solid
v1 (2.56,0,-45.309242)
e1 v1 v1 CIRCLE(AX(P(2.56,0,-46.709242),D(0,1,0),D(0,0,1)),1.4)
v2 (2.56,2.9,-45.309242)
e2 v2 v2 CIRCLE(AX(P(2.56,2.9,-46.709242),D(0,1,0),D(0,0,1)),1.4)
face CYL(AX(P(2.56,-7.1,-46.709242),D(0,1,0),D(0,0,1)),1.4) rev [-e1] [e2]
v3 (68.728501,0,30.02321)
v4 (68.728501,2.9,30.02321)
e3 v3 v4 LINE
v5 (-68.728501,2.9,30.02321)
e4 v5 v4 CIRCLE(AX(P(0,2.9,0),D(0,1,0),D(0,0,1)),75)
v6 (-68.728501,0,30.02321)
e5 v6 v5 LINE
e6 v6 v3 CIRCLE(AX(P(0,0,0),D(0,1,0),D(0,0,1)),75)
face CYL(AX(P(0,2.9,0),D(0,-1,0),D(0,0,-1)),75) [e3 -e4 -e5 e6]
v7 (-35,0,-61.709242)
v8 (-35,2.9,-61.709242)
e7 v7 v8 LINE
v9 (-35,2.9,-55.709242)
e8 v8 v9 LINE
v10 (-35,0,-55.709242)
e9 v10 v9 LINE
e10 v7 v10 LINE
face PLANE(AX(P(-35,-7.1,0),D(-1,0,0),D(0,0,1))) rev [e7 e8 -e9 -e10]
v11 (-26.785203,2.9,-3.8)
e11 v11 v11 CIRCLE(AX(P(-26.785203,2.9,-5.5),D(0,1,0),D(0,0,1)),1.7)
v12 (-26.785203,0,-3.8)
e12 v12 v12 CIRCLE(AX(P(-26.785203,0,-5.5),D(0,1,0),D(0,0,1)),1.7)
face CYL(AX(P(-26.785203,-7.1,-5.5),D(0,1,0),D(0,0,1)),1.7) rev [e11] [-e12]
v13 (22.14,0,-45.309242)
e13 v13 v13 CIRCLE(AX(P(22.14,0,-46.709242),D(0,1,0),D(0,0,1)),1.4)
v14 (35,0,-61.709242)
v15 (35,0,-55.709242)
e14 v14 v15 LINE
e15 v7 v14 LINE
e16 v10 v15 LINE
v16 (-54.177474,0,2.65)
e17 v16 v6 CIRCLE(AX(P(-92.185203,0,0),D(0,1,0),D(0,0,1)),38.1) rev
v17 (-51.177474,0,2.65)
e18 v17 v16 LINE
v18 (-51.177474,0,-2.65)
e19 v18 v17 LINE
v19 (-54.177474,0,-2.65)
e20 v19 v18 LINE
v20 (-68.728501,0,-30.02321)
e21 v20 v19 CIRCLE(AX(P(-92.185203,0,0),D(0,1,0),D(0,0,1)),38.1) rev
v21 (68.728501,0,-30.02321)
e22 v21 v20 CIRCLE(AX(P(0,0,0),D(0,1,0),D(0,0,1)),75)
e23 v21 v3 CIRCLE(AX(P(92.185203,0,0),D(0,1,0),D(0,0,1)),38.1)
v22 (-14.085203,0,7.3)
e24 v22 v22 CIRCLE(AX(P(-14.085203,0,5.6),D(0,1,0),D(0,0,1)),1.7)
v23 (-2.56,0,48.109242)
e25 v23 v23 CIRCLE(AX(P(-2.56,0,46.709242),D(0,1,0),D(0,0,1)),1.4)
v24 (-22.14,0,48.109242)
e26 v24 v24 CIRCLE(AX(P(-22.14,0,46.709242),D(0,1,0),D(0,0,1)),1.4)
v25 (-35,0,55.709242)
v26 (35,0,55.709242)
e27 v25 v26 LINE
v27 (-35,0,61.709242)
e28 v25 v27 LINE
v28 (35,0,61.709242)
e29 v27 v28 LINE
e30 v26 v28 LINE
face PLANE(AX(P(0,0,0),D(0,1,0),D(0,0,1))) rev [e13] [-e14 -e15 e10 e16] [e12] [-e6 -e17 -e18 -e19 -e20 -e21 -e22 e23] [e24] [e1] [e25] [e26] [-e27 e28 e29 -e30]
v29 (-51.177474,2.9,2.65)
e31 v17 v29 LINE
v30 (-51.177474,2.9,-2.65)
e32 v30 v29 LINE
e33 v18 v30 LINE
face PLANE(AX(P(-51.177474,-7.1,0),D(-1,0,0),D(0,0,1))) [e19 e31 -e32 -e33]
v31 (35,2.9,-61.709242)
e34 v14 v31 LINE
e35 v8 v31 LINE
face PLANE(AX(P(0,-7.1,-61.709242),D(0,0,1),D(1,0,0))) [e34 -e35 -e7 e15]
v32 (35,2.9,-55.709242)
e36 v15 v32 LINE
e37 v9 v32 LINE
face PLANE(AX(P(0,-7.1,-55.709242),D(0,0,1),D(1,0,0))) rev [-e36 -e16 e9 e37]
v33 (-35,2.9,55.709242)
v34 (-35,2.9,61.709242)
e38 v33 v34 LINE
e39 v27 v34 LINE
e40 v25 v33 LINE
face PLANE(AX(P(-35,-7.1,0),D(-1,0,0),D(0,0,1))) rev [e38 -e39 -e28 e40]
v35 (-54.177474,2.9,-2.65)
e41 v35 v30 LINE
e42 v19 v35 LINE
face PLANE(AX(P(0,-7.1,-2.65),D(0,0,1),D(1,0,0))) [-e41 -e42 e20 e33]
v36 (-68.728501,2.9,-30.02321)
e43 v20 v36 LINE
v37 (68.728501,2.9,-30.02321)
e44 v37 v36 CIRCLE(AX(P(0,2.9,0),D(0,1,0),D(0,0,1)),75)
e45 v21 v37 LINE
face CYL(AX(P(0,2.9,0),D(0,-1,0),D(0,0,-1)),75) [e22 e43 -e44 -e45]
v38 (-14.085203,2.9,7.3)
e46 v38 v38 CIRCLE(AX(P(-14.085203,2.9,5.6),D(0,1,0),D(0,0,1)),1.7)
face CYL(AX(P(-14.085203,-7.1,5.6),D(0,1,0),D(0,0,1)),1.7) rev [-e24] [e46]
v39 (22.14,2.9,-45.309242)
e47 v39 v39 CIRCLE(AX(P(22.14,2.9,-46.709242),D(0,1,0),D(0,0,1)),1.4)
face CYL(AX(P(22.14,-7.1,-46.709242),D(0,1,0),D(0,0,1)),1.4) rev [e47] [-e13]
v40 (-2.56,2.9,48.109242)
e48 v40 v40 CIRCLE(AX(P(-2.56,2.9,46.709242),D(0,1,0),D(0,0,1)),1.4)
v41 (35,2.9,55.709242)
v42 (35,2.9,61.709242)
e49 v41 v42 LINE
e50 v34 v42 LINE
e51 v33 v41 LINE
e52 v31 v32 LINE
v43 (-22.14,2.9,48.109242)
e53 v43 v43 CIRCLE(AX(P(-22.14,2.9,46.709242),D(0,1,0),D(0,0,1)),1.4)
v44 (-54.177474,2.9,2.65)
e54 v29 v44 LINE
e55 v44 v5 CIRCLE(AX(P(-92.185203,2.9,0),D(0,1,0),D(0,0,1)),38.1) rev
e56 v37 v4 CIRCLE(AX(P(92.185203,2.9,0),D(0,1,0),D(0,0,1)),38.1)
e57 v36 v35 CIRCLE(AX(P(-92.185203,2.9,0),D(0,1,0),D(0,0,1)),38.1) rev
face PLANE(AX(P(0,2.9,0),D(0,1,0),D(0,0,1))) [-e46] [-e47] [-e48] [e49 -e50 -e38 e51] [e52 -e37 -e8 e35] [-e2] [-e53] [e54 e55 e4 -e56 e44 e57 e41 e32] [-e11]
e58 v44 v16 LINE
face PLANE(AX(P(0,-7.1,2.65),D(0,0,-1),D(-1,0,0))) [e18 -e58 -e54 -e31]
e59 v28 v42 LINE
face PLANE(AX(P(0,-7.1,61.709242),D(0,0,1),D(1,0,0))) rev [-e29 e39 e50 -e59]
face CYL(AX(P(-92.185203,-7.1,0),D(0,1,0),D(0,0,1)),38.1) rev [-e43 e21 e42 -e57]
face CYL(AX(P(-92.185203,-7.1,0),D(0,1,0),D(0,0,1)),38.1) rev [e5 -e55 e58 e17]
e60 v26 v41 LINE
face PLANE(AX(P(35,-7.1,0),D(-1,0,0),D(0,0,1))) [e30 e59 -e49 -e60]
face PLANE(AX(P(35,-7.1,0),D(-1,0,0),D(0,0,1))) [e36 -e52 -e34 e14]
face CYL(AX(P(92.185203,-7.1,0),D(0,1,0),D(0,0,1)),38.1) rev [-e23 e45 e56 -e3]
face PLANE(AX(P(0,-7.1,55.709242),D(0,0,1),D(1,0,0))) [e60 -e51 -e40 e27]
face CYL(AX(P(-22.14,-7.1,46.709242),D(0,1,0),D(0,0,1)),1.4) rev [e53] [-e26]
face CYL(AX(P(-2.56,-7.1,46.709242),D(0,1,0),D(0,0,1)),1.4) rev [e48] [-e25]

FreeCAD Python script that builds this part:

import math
import FreeCAD as App
import Part
import Sketcher

doc = App.newDocument("Part")
params = doc.addObject("Spreadsheet::Sheet", "Params")
for row, (alias, value) in enumerate([
    ("sketch1_diameter", "150 mm"),
    ("pad1_length", "2.9 mm"),
    ("sketch2_radius", "75 mm"),
    ("sketch2_diameter", "2.8 mm"),
    ("sketch2_radius2", "38.1 mm"),
    ("sketch2_width", "70 mm"),
    ("sketch2_height", "6 mm"),
    ("pocket1_length", "10 mm"),
    ("sketch3_diameter", "3.4 mm"),
    ("sketch3_radius", "38.1 mm"),
    ("sketch3_width", "3 mm"),
    ("sketch3_height", "5.3 mm"),
    ("pocket2_length", "10 mm"),
], start=1):
    params.set(f"A{row}", alias)
    params.set(f"B{row}", "=" + value)
    params.setAlias(f"B{row}", alias)

body = doc.addObject("PartDesign::Body", "Body")

# Sketch on XZ plane
sketch1 = body.newObject("Sketcher::SketchObject", "Sketch")
sketch1.AttachmentSupport = (doc.getObject("XZ_Plane"), [""])
sketch1.MapMode = "FlatFace"
sketch1.addGeometry(Part.Circle(App.Vector(0, 0, 0), App.Vector(0, 0, 1), 75), False)
sketch1.addConstraint([
    Sketcher.Constraint("Coincident", 0, 3, -1, 1),
    Sketcher.Constraint("Diameter", 0, 150.0),
])
sketch1.setExpression("Constraints[1]", "Params.sketch1_diameter")
pad1 = body.newObject("PartDesign::Pad", "Pad")
pad1.Profile = sketch1
pad1.setExpression("Length", "Params.pad1_length")
pad1.Reversed = True

# Sketch on XZ plane
sketch2 = body.newObject("Sketcher::SketchObject", "Sketch001")
sketch2.AttachmentSupport = (doc.getObject("XZ_Plane"), [""])
sketch2.MapMode = "FlatFace"
sketch2.AttachmentOffset = App.Placement(App.Vector(0, 0, -2.9), App.Rotation())
sketch2.addGeometry([
    Part.LineSegment(App.Vector(-35, 55.7, 0), App.Vector(-35, 61.7, 0)),  # 0
    Part.LineSegment(App.Vector(-35, 61.7, 0), App.Vector(35, 61.7, 0)),  # 1
    Part.LineSegment(App.Vector(35, 61.7, 0), App.Vector(35, 55.7, 0)),  # 2
    Part.LineSegment(App.Vector(35, 55.7, 0), App.Vector(-35, 55.7, 0)),  # 3
    Part.LineSegment(App.Vector(-35, -61.7, 0), App.Vector(-35, -55.7, 0)),  # 4
    Part.LineSegment(App.Vector(-35, -55.7, 0), App.Vector(35, -55.7, 0)),  # 5
    Part.LineSegment(App.Vector(35, -55.7, 0), App.Vector(35, -61.7, 0)),  # 6
    Part.LineSegment(App.Vector(35, -61.7, 0), App.Vector(-35, -61.7, 0)),  # 7
    Part.ArcOfCircle(Part.Circle(App.Vector(-92.2, 0, 0), App.Vector(0, 0, 1), 38.1), math.radians(-52), math.radians(52)),  # 8
    Part.ArcOfCircle(Part.Circle(App.Vector(0, 0, 0), App.Vector(0, 0, 1), 75), math.radians(156), math.radians(204)),  # 9
    Part.ArcOfCircle(Part.Circle(App.Vector(0, 0, 0), App.Vector(0, 0, 1), 75), math.radians(-24), math.radians(24)),  # 10
    Part.ArcOfCircle(Part.Circle(App.Vector(92.2, 0, 0), App.Vector(0, 0, 1), 38.1), math.radians(128), math.radians(232)),  # 11
    Part.Circle(App.Vector(-22.1, 46.7, 0), App.Vector(0, 0, 1), 1.4),  # 12
    Part.Circle(App.Vector(-2.6, 46.7, 0), App.Vector(0, 0, 1), 1.4),  # 13
    Part.Circle(App.Vector(22.1, -46.7, 0), App.Vector(0, 0, 1), 1.4),  # 14
    Part.Circle(App.Vector(2.6, -46.7, 0), App.Vector(0, 0, 1), 1.4),  # 15
], False)
sketch2.addConstraint([
    Sketcher.Constraint("Coincident", 0, 2, 1, 1),
    Sketcher.Constraint("Coincident", 1, 2, 2, 1),
    Sketcher.Constraint("Coincident", 2, 2, 3, 1),
    Sketcher.Constraint("Coincident", 3, 2, 0, 1),
    Sketcher.Constraint("Coincident", 4, 2, 5, 1),
    Sketcher.Constraint("Coincident", 5, 2, 6, 1),
    Sketcher.Constraint("Coincident", 6, 2, 7, 1),
    Sketcher.Constraint("Coincident", 7, 2, 4, 1),
    Sketcher.Constraint("Coincident", 8, 1, 9, 2),
    Sketcher.Constraint("Coincident", 9, 1, 8, 2),
    Sketcher.Constraint("Coincident", 10, 1, 11, 2),
    Sketcher.Constraint("Coincident", 11, 1, 10, 2),
    Sketcher.Constraint("Vertical", 0),
    Sketcher.Constraint("Horizontal", 1),
    Sketcher.Constraint("Vertical", 2),
    Sketcher.Constraint("Horizontal", 3),
    Sketcher.Constraint("Vertical", 4),
    Sketcher.Constraint("Horizontal", 5),
    Sketcher.Constraint("Vertical", 6),
    Sketcher.Constraint("Horizontal", 7),
    Sketcher.Constraint("Coincident", 9, 3, -1, 1),
    Sketcher.Constraint("Coincident", 10, 3, -1, 1),
    Sketcher.Constraint("Equal", 9, 10),
    Sketcher.Constraint("Equal", 8, 11),
    Sketcher.Constraint("Equal", 12, 13),
    Sketcher.Constraint("Equal", 13, 14),
    Sketcher.Constraint("Equal", 14, 15),
    Sketcher.Constraint("Symmetric", 8, 3, 11, 3, -1, 1),
    Sketcher.Constraint("Symmetric", 12, 3, 14, 3, -1, 1),
    Sketcher.Constraint("Symmetric", 13, 3, 15, 3, -1, 1),
    Sketcher.Constraint("Symmetric", 2, 2, 4, 2, -1, 1),
    Sketcher.Constraint("Symmetric", 0, 2, 6, 2, -1, 1),
    Sketcher.Constraint("PointOnObject", 8, 3, -1),
    Sketcher.Constraint("Horizontal", 12, 3, 13, 3),
    Sketcher.Constraint("Vertical", 3, 2, 4, 2),
    Sketcher.Constraint("Radius", 9, 75.0),
    Sketcher.Constraint("Diameter", 12, 2.8),
    Sketcher.Constraint("Radius", 8, 38.1),
    Sketcher.Constraint("DistanceX", 1, 1, 1, 2, 70.0),
    Sketcher.Constraint("DistanceY", 0, 1, 0, 2, 6.0),
    Sketcher.Constraint("DistanceY", 12, 3, 0, 2, 15.0),
    Sketcher.Constraint("DistanceX", 13, 3, 14, 3, 24.7),
    Sketcher.Constraint("DistanceX", 12, 3, -1, 1, 22.14),
    Sketcher.Constraint("DistanceX", 8, 1, -1, 1, 68.728501),
    Sketcher.Constraint("DistanceY", -1, 1, 12, 3, 46.709242),
])
sketch2.setExpression("Constraints[35]", "Params.sketch2_radius")
sketch2.setExpression("Constraints[36]", "Params.sketch2_diameter")
sketch2.setExpression("Constraints[37]", "Params.sketch2_radius2")
sketch2.setExpression("Constraints[38]", "Params.sketch2_width")
sketch2.setExpression("Constraints[39]", "Params.sketch2_height")
pocket1 = body.newObject("PartDesign::Pocket", "Pocket")
pocket1.Profile = sketch2
pocket1.setExpression("Length", "Params.pocket1_length")
pocket1.Reversed = True

# Sketch on XZ plane
sketch3 = body.newObject("Sketcher::SketchObject", "Sketch002")
sketch3.AttachmentSupport = (doc.getObject("XZ_Plane"), [""])
sketch3.MapMode = "FlatFace"
sketch3.AttachmentOffset = App.Placement(App.Vector(0, 0, -2.9), App.Rotation())
sketch3.addGeometry([
    Part.Circle(App.Vector(-26.8, -5.5, 0), App.Vector(0, 0, 1), 1.7),  # 0
    Part.Circle(App.Vector(-14.1, 5.6, 0), App.Vector(0, 0, 1), 1.7),  # 1
    Part.LineSegment(App.Vector(-51.2, -2.6, 0), App.Vector(-54.2, -2.6, 0)),  # 2
    Part.ArcOfCircle(Part.Circle(App.Vector(-92.2, 0, 0), App.Vector(0, 0, 1), 38.1), math.radians(-3.99), math.radians(3.99)),  # 3
    Part.LineSegment(App.Vector(-54.2, 2.6, 0), App.Vector(-51.2, 2.6, 0)),  # 4
    Part.LineSegment(App.Vector(-51.2, 2.6, 0), App.Vector(-51.2, -2.6, 0)),  # 5
], False)
sketch3.addConstraint([
    Sketcher.Constraint("Coincident", 2, 2, 3, 1),
    Sketcher.Constraint("Coincident", 3, 2, 4, 1),
    Sketcher.Constraint("Coincident", 4, 2, 5, 1),
    Sketcher.Constraint("Coincident", 5, 2, 2, 1),
    Sketcher.Constraint("Horizontal", 2),
    Sketcher.Constraint("Horizontal", 4),
    Sketcher.Constraint("Vertical", 5),
    Sketcher.Constraint("Equal", 0, 1),
    Sketcher.Constraint("Symmetric", 2, 2, 3, 2, -1),
    Sketcher.Constraint("Diameter", 0, 3.4),
    Sketcher.Constraint("Radius", 3, 38.1),
    Sketcher.Constraint("DistanceX", 2, 2, 2, 1, 3.0),
    Sketcher.Constraint("DistanceY", 5, 2, 5, 1, 5.3),
    Sketcher.Constraint("DistanceY", 0, 3, -1, 1, 5.5),
    Sketcher.Constraint("DistanceY", -1, 1, 1, 3, 5.6),
    Sketcher.Constraint("DistanceX", 0, 3, 1, 3, 12.7),
    Sketcher.Constraint("DistanceX", 3, 3, 0, 3, 65.4),
    Sketcher.Constraint("DistanceX", 0, 3, -1, 1, 26.785203),
])
sketch3.setExpression("Constraints[9]", "Params.sketch3_diameter")
sketch3.setExpression("Constraints[10]", "Params.sketch3_radius")
sketch3.setExpression("Constraints[11]", "Params.sketch3_width")
sketch3.setExpression("Constraints[12]", "Params.sketch3_height")
pocket2 = body.newObject("PartDesign::Pocket", "Pocket001")
pocket2.Profile = sketch3
pocket2.setExpression("Length", "Params.pocket2_length")
pocket2.Reversed = True

doc.recompute()
